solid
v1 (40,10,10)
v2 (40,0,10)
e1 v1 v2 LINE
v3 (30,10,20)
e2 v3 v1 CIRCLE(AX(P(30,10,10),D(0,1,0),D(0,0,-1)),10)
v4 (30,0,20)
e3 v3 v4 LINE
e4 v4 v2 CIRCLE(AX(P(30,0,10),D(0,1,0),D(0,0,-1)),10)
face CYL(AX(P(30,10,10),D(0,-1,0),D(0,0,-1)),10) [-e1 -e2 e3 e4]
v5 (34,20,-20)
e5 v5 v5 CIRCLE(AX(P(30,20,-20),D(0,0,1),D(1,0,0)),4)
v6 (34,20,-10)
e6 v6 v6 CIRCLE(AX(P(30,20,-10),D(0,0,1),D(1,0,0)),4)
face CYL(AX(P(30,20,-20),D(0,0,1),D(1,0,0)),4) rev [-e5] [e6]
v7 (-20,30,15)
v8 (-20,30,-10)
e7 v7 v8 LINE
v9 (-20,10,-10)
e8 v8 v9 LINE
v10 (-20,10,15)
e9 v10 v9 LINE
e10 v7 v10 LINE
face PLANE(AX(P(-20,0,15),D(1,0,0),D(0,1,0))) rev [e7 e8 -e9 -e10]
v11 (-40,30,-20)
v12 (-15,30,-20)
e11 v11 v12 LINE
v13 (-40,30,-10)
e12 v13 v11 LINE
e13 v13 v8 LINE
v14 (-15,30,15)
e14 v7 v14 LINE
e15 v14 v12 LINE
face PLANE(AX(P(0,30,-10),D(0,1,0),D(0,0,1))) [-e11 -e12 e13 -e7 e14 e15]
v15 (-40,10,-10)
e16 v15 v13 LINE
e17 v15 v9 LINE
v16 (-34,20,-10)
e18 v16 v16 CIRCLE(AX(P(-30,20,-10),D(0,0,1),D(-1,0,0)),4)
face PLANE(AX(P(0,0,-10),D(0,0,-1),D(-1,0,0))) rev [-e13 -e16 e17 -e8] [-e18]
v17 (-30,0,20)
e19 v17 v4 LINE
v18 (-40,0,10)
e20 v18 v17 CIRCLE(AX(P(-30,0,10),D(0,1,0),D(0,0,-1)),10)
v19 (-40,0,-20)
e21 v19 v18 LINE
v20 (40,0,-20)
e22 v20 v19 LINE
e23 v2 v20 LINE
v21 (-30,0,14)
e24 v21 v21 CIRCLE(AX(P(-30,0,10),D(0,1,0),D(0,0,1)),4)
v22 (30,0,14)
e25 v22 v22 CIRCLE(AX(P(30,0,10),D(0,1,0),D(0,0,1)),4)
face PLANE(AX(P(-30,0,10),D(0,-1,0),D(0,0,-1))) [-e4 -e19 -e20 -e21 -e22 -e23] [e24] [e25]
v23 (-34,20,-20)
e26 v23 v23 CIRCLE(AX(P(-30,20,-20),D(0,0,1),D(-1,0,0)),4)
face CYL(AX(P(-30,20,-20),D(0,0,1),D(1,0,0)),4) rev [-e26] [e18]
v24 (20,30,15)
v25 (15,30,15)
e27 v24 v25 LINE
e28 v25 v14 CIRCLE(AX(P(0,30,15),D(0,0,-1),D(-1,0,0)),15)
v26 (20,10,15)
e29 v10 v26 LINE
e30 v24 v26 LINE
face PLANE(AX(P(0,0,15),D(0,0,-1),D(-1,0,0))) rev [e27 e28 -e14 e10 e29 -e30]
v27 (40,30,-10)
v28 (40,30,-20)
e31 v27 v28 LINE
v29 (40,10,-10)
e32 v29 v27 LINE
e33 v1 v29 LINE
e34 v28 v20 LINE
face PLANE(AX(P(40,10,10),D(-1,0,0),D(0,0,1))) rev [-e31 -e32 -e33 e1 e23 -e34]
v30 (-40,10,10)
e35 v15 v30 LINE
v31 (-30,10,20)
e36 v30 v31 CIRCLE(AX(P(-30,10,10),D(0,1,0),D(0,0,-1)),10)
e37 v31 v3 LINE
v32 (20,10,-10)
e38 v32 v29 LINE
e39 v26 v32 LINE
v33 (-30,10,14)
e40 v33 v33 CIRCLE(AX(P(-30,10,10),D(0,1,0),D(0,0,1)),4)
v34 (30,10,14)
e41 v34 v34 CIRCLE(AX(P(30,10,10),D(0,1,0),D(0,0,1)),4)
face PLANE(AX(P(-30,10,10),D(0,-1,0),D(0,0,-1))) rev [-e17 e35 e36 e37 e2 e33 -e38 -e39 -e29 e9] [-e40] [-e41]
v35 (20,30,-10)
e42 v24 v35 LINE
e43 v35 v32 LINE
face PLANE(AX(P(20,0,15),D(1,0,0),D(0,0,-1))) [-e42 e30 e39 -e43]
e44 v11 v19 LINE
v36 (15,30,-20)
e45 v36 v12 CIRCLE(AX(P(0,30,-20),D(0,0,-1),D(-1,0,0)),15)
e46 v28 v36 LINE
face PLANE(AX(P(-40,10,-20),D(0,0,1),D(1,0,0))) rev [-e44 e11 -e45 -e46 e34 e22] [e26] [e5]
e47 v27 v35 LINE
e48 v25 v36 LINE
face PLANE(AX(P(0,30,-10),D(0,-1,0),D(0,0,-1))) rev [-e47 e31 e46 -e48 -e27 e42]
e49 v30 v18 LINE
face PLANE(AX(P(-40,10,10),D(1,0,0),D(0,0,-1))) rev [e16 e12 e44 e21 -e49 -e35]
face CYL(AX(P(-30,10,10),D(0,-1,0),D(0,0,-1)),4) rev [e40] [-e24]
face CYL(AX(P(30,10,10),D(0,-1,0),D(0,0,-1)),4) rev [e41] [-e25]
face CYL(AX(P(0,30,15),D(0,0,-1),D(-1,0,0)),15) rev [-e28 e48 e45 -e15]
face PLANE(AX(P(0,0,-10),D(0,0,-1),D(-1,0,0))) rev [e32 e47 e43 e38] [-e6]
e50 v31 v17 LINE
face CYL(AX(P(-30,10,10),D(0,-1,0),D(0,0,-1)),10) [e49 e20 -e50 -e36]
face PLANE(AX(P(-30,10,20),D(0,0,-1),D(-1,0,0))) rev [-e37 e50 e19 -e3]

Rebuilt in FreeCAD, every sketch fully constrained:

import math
import FreeCAD as App
import Part
import Sketcher
Q = App.Units.Quantity

doc = App.newDocument("Part")
params = doc.addObject("Spreadsheet::Sheet", "Params")
for row, (alias, value) in enumerate([
    ("sketch1_diameter", "8 mm"),
    ("sketch1_radius", "10 mm"),
    ("sketch1_width", "60 mm"),
    ("sketch1_height", "30 mm"),
    ("pad1_length", "10 mm"),
    ("sketch2_width", "80 mm"),
    ("sketch2_width2", "20 mm"),
    ("sketch2_height", "30 mm"),
    ("pad2_length", "10 mm"),
    ("sketch3_radius", "15 mm"),
    ("sketch3_width", "40 mm"),
    ("sketch3_height", "20 mm"),
    ("pad3_length", "35 mm"),
    ("sketch4_diameter", "8 mm"),
], start=1):
    params.set(f"A{row}", alias)
    params.set(f"B{row}", "=" + value)
    params.setAlias(f"B{row}", alias)

body = doc.addObject("PartDesign::Body", "Body")

sketch1 = body.newObject("Sketcher::SketchObject", "Sketch")
sketch1.AttachmentSupport = (doc.getObject("XZ_Plane"), [""])
sketch1.MapMode = "FlatFace"
sketch1.addGeometry(Part.LineSegment(App.Vector(-30, 20, 0), App.Vector(30, 20, 0)), False)
sketch1.addGeometry(Part.ArcOfCircle(Part.Circle(App.Vector(30, 10, 0), App.Vector(0, 0, 1), 10), math.radians(0), math.radians(90)), False)
sketch1.addGeometry(Part.LineSegment(App.Vector(40, 10, 0), App.Vector(40, -20, 0)), False)
sketch1.addGeometry(Part.LineSegment(App.Vector(40, -20, 0), App.Vector(-40, -20, 0)), False)
sketch1.addGeometry(Part.LineSegment(App.Vector(-40, -20, 0), App.Vector(-40, 10, 0)), False)
sketch1.addGeometry(Part.ArcOfCircle(Part.Circle(App.Vector(-30, 10, 0), App.Vector(0, 0, 1), 10), math.radians(90), math.radians(180)), False)
sketch1.addGeometry(Part.Circle(App.Vector(-30, 10, 0), App.Vector(0, 0, 1), 4), False)
sketch1.addGeometry(Part.Circle(App.Vector(30, 10, 0), App.Vector(0, 0, 1), 4), False)
sketch1.addConstraint(Sketcher.Constraint("Tangent", 0, 2, 1, 2))
sketch1.addConstraint(Sketcher.Constraint("Tangent", 1, 1, 2, 1))
sketch1.addConstraint(Sketcher.Constraint("Coincident", 2, 2, 3, 1))
sketch1.addConstraint(Sketcher.Constraint("Coincident", 3, 2, 4, 1))
sketch1.addConstraint(Sketcher.Constraint("Tangent", 4, 2, 5, 2))
sketch1.addConstraint(Sketcher.Constraint("Tangent", 5, 1, 0, 1))
sketch1.addConstraint(Sketcher.Constraint("Horizontal", 0))
sketch1.addConstraint(Sketcher.Constraint("Vertical", 2))
sketch1.addConstraint(Sketcher.Constraint("Horizontal", 3))
sketch1.addConstraint(Sketcher.Constraint("Vertical", 4))
sketch1.addConstraint(Sketcher.Constraint("Coincident", 6, 3, 5, 3))
sketch1.addConstraint(Sketcher.Constraint("Coincident", 7, 3, 1, 3))
sketch1.addConstraint(Sketcher.Constraint("Equal", 1, 5))
sketch1.addConstraint(Sketcher.Constraint("Equal", 6, 7))
sketch1.addConstraint(Sketcher.Constraint("Diameter", 6, Q("8 mm")))
sketch1.addConstraint(Sketcher.Constraint("Radius", 1, Q("10 mm")))
sketch1.addConstraint(Sketcher.Constraint("DistanceX", 0, 1, 0, 2, Q("60 mm")))
sketch1.addConstraint(Sketcher.Constraint("DistanceY", 2, 2, 2, 1, Q("30 mm")))
sketch1.addConstraint(Sketcher.Constraint("DistanceX", -1, 1, 1, 3, Q("30 mm")))
sketch1.addConstraint(Sketcher.Constraint("DistanceY", -1, 1, 1, 3, Q("10 mm")))
sketch1.setExpression("Constraints[14]", "Params.sketch1_diameter")
sketch1.setExpression("Constraints[15]", "Params.sketch1_radius")
sketch1.setExpression("Constraints[16]", "Params.sketch1_width")
sketch1.setExpression("Constraints[17]", "Params.sketch1_height")
pad1 = body.newObject("PartDesign::Pad", "Pad")
pad1.Profile = sketch1
pad1.setExpression("Length", "Params.pad1_length")
pad1.Reversed = True

sketch2 = body.newObject("Sketcher::SketchObject", "Sketch001")
sketch2.AttachmentSupport = (doc.getObject("XY_Plane"), [""])
sketch2.MapMode = "FlatFace"
sketch2.AttachmentOffset = App.Placement(App.Vector(0, 0, -20), App.Rotation())
sketch2.addGeometry(Part.LineSegment(App.Vector(40, 30, 0), App.Vector(40, 0, 0)), False)
sketch2.addGeometry(Part.LineSegment(App.Vector(40, 0, 0), App.Vector(-40, 0, 0)), False)
sketch2.addGeometry(Part.LineSegment(App.Vector(-40, 0, 0), App.Vector(-40, 30, 0)), False)
sketch2.addGeometry(Part.LineSegment(App.Vector(-40, 30, 0), App.Vector(-20, 30, 0)), False)
sketch2.addGeometry(Part.LineSegment(App.Vector(-20, 30, 0), App.Vector(-20, 10, 0)), False)
sketch2.addGeometry(Part.LineSegment(App.Vector(-20, 10, 0), App.Vector(20, 10, 0)), False)
sketch2.addGeometry(Part.LineSegment(App.Vector(20, 10, 0), App.Vector(20, 30, 0)), False)
sketch2.addGeometry(Part.LineSegment(App.Vector(20, 30, 0), App.Vector(40, 30, 0)), False)
sketch2.addConstraint(Sketcher.Constraint("Coincident", 0, 2, 1, 1))
sketch2.addConstraint(Sketcher.Constraint("Coincident", 1, 2, 2, 1))
sketch2.addConstraint(Sketcher.Constraint("Coincident", 2, 2, 3, 1))
sketch2.addConstraint(Sketcher.Constraint("Coincident", 3, 2, 4, 1))
sketch2.addConstraint(Sketcher.Constraint("Coincident", 4, 2, 5, 1))
sketch2.addConstraint(Sketcher.Constraint("Coincident", 5, 2, 6, 1))
sketch2.addConstraint(Sketcher.Constraint("Coincident", 6, 2, 7, 1))
sketch2.addConstraint(Sketcher.Constraint("Coincident", 7, 2, 0, 1))
sketch2.addConstraint(Sketcher.Constraint("Vertical", 0))
sketch2.addConstraint(Sketcher.Constraint("Horizontal", 1))
sketch2.addConstraint(Sketcher.Constraint("Vertical", 2))
sketch2.addConstraint(Sketcher.Constraint("Horizontal", 3))
sketch2.addConstraint(Sketcher.Constraint("Vertical", 4))
sketch2.addConstraint(Sketcher.Constraint("Horizontal", 5))
sketch2.addConstraint(Sketcher.Constraint("Vertical", 6))
sketch2.addConstraint(Sketcher.Constraint("Horizontal", 7))
sketch2.addConstraint(Sketcher.Constraint("Symmetric", 0, 2, 1, 2, -1, 1))
sketch2.addConstraint(Sketcher.Constraint("Symmetric", 3, 2, 6, 2, -2))
sketch2.addConstraint(Sketcher.Constraint("Equal", 7, 4))
sketch2.addConstraint(Sketcher.Constraint("DistanceX", 1, 2, 1, 1, Q("80 mm")))
sketch2.addConstraint(Sketcher.Constraint("DistanceX", 3, 1, 3, 2, Q("20 mm")))
sketch2.addConstraint(Sketcher.Constraint("DistanceY", 0, 2, 0, 1, Q("30 mm")))
sketch2.setExpression("Constraints[19]", "Params.sketch2_width")
sketch2.setExpression("Constraints[20]", "Params.sketch2_width2")
sketch2.setExpression("Constraints[21]", "Params.sketch2_height")
pad2 = body.newObject("PartDesign::Pad", "Pad001")
pad2.Profile = sketch2
pad2.setExpression("Length", "Params.pad2_length")

sketch3 = body.newObject("Sketcher::SketchObject", "Sketch002")
sketch3.AttachmentSupport = (doc.getObject("XY_Plane"), [""])
sketch3.MapMode = "FlatFace"
sketch3.AttachmentOffset = App.Placement(App.Vector(0, 0, -20), App.Rotation())
sketch3.addGeometry(Part.LineSegment(App.Vector(20, 10, 0), App.Vector(-20, 10, 0)), False)
sketch3.addGeometry(Part.LineSegment(App.Vector(-20, 10, 0), App.Vector(-20, 30, 0)), False)
sketch3.addGeometry(Part.LineSegment(App.Vector(-20, 30, 0), App.Vector(-15, 30, 0)), False)
sketch3.addGeometry(Part.ArcOfCircle(Part.Circle(App.Vector(0, 30, 0), App.Vector(0, 0, 1), 15), math.radians(180), math.radians(360)), False)
sketch3.addGeometry(Part.LineSegment(App.Vector(15, 30, 0), App.Vector(20, 30, 0)), False)
sketch3.addGeometry(Part.LineSegment(App.Vector(20, 30, 0), App.Vector(20, 10, 0)), False)
sketch3.addConstraint(Sketcher.Constraint("Coincident", 0, 2, 1, 1))
sketch3.addConstraint(Sketcher.Constraint("Coincident", 1, 2, 2, 1))
sketch3.addConstraint(Sketcher.Constraint("Coincident", 2, 2, 3, 1))
sketch3.addConstraint(Sketcher.Constraint("Coincident", 3, 2, 4, 1))
sketch3.addConstraint(Sketcher.Constraint("Coincident", 4, 2, 5, 1))
sketch3.addConstraint(Sketcher.Constraint("Coincident", 5, 2, 0, 1))
sketch3.addConstraint(Sketcher.Constraint("Horizontal", 0))
sketch3.addConstraint(Sketcher.Constraint("Vertical", 1))
sketch3.addConstraint(Sketcher.Constraint("Horizontal", 2))
sketch3.addConstraint(Sketcher.Constraint("Horizontal", 4))
sketch3.addConstraint(Sketcher.Constraint("Vertical", 5))
sketch3.addConstraint(Sketcher.Constraint("Symmetric", 2, 2, 3, 2, -2))
sketch3.addConstraint(Sketcher.Constraint("Horizontal", 3, 3, 1, 2))
sketch3.addConstraint(Sketcher.Constraint("Equal", 2, 4))
sketch3.addConstraint(Sketcher.Constraint("Radius", 3, Q("15 mm")))
sketch3.addConstraint(Sketcher.Constraint("DistanceX", 0, 2, 0, 1, Q("40 mm")))
sketch3.addConstraint(Sketcher.Constraint("DistanceY", 1, 1, 1, 2, Q("20 mm")))
sketch3.addConstraint(Sketcher.Constraint("DistanceY", -1, 1, 3, 3, Q("30 mm")))
sketch3.setExpression("Constraints[14]", "Params.sketch3_radius")
sketch3.setExpression("Constraints[15]", "Params.sketch3_width")
sketch3.setExpression("Constraints[16]", "Params.sketch3_height")
pad3 = body.newObject("PartDesign::Pad", "Pad002")
pad3.Profile = sketch3
pad3.setExpression("Length", "Params.pad3_length")

sketch4 = body.newObject("Sketcher::SketchObject", "Sketch003")
sketch4.AttachmentSupport = (doc.getObject("XY_Plane"), [""])
sketch4.MapMode = "FlatFace"
sketch4.AttachmentOffset = App.Placement(App.Vector(0, 0, -10), App.Rotation())
sketch4.addGeometry(Part.Circle(App.Vector(30, 20, 0), App.Vector(0, 0, 1), 4), False)
sketch4.addGeometry(Part.Circle(App.Vector(-30, 20, 0), App.Vector(0, 0, 1), 4), False)
sketch4.addConstraint(Sketcher.Constraint("Equal", 0, 1))
sketch4.addConstraint(Sketcher.Constraint("Symmetric", 0, 3, 1, 3, -2))
sketch4.addConstraint(Sketcher.Constraint("Diameter", 0, Q("8 mm")))
sketch4.addConstraint(Sketcher.Constraint("DistanceX", -1, 1, 0, 3, Q("30 mm")))
sketch4.addConstraint(Sketcher.Constraint("DistanceY", -1, 1, 0, 3, Q("20 mm")))
sketch4.setExpression("Constraints[2]", "Params.sketch4_diameter")
pocket1 = body.newObject("PartDesign::Pocket", "Pocket")
pocket1.Profile = sketch4
pocket1.Type = "ThroughAll"

doc.recompute()
